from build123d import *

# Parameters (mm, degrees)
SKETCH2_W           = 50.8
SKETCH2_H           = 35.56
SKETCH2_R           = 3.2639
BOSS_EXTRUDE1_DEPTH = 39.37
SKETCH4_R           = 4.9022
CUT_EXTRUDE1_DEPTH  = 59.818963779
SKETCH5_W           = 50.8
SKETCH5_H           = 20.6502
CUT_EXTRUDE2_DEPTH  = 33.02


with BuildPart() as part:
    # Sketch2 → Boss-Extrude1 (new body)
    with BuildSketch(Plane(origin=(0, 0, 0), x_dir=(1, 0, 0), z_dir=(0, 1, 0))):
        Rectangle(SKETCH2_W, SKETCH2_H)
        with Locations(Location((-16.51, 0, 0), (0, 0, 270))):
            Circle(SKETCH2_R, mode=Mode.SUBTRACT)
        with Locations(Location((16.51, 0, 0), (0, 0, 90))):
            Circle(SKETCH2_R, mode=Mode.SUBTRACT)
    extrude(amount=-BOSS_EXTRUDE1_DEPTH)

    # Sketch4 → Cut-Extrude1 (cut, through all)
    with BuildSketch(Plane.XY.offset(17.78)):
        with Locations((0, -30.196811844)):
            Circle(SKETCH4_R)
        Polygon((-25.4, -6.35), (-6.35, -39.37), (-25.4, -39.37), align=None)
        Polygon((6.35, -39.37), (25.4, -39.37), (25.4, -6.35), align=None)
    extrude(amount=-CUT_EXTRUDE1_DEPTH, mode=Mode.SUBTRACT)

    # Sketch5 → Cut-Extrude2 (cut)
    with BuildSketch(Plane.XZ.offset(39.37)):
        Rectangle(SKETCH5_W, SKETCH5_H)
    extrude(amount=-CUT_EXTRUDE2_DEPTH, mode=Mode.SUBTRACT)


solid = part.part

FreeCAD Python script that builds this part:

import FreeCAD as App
import Part
import Sketcher

V = App.Vector
Q = App.Units.Quantity

doc = App.newDocument("Part")
params = doc.addObject("Spreadsheet::Sheet", "Params")
for row, (alias, value) in enumerate([
    ("sketch1_width", "2 in"),
    ("sketch1_diameter", "0.257 in"),
    ("sketch1_height", "1.4 in"),
    ("pad1_length", "1.55 in"),
    ("sketch2_diameter", "0.386 in"),
    ("sketch2_height", "1.3 in"),
    ("sketch2_width", "0.75 in"),
    ("sketch3_width", "2 in"),
    ("sketch3_height", "0.813 in"),
    ("pocket2_length", "1.3 in"),
], start=1):
    params.set(f"A{row}", alias)
    params.set(f"B{row}", "=" + value)
    params.setAlias(f"B{row}", alias)

body = doc.addObject("PartDesign::Body", "Body")

sketch1 = body.newObject("Sketcher::SketchObject", "Sketch")
sketch1.AttachmentSupport = (doc.getObject("XZ_Plane"), [""])
sketch1.MapMode = "FlatFace"
sketch1.addGeometry(Part.LineSegment(V(-25.4, -17.8, 0), V(-25.4, 17.8, 0)), False)
sketch1.addGeometry(Part.LineSegment(V(-25.4, 17.8, 0), V(25.4, 17.8, 0)), False)
sketch1.addGeometry(Part.LineSegment(V(25.4, 17.8, 0), V(25.4, -17.8, 0)), False)
sketch1.addGeometry(Part.LineSegment(V(25.4, -17.8, 0), V(-25.4, -17.8, 0)), False)
sketch1.addGeometry(Part.Circle(V(-16.5, 0, 0), V(0, 0, 1), 3.3), False)
sketch1.addGeometry(Part.Circle(V(16.5, 0, 0), V(0, 0, 1), 3.3), False)
sketch1.addConstraint(Sketcher.Constraint("Coincident", 0, 2, 1, 1))
sketch1.addConstraint(Sketcher.Constraint("Coincident", 1, 2, 2, 1))
sketch1.addConstraint(Sketcher.Constraint("Coincident", 2, 2, 3, 1))
sketch1.addConstraint(Sketcher.Constraint("Coincident", 3, 2, 0, 1))
sketch1.addConstraint(Sketcher.Constraint("Vertical", 0))
sketch1.addConstraint(Sketcher.Constraint("Horizontal", 1))
sketch1.addConstraint(Sketcher.Constraint("Vertical", 2))
sketch1.addConstraint(Sketcher.Constraint("Horizontal", 3))
sketch1.addConstraint(Sketcher.Constraint("Equal", 4, 5))
sketch1.addConstraint(Sketcher.Constraint("Symmetric", 4, 3, 5, 3, -1, 1))
sketch1.addConstraint(Sketcher.Constraint("Symmetric", 0, 2, 2, 2, -1, 1))
sketch1.addConstraint(Sketcher.Constraint("PointOnObject", 4, 3, -1))
sketch1.addConstraint(Sketcher.Constraint("DistanceX", 1, 1, 1, 2, Q("2 in")))
sketch1.addConstraint(Sketcher.Constraint("Diameter", 4, Q("0.257 in")))
sketch1.addConstraint(Sketcher.Constraint("DistanceY", 0, 1, 0, 2, Q("1.4 in")))
sketch1.addConstraint(Sketcher.Constraint("DistanceX", 4, 3, 5, 3, Q("1.3 in")))
sketch1.setExpression("Constraints[12]", "Params.sketch1_width")
sketch1.setExpression("Constraints[13]", "Params.sketch1_diameter")
sketch1.setExpression("Constraints[14]", "Params.sketch1_height")
pad1 = body.newObject("PartDesign::Pad", "Pad")
pad1.Profile = sketch1
pad1.setExpression("Length", "Params.pad1_length")

sketch2 = body.newObject("Sketcher::SketchObject", "Sketch001")
sketch2.AttachmentSupport = (doc.getObject("XY_Plane"), [""])
sketch2.MapMode = "FlatFace"
sketch2.AttachmentOffset = App.Placement(V(0, 0, 0.7 * 25.4), App.Rotation())
sketch2.addGeometry(Part.Circle(V(0, -30.2, 0), V(0, 0, 1), 4.9), False)
sketch2.addGeometry(Part.LineSegment(V(-6.3, -39.4, 0), V(-25.4, -6.3, 0)), False)
sketch2.addGeometry(Part.LineSegment(V(-25.4, -6.3, 0), V(-25.4, -39.4, 0)), False)
sketch2.addGeometry(Part.LineSegment(V(-25.4, -39.4, 0), V(-6.3, -39.4, 0)), False)
sketch2.addGeometry(Part.LineSegment(V(6.3, -39.4, 0), V(25.4, -39.4, 0)), False)
sketch2.addGeometry(Part.LineSegment(V(25.4, -39.4, 0), V(25.4, -6.3, 0)), False)
sketch2.addGeometry(Part.LineSegment(V(25.4, -6.3, 0), V(6.3, -39.4, 0)), False)
sketch2.addConstraint(Sketcher.Constraint("Coincident", 1, 2, 2, 1))
sketch2.addConstraint(Sketcher.Constraint("Coincident", 2, 2, 3, 1))
sketch2.addConstraint(Sketcher.Constraint("Coincident", 3, 2, 1, 1))
sketch2.addConstraint(Sketcher.Constraint("Coincident", 4, 2, 5, 1))
sketch2.addConstraint(Sketcher.Constraint("Coincident", 5, 2, 6, 1))
sketch2.addConstraint(Sketcher.Constraint("Coincident", 6, 2, 4, 1))
sketch2.addConstraint(Sketcher.Constraint("Vertical", 2))
sketch2.addConstraint(Sketcher.Constraint("Horizontal", 3))
sketch2.addConstraint(Sketcher.Constraint("Horizontal", 4))
sketch2.addConstraint(Sketcher.Constraint("Vertical", 5))
sketch2.addConstraint(Sketcher.Constraint("Symmetric", 2, 2, 4, 2, -2))
sketch2.addConstraint(Sketcher.Constraint("PointOnObject", 0, 3, -2))
sketch2.addConstraint(Sketcher.Constraint("Horizontal", 1, 2, 5, 2))
sketch2.addConstraint(Sketcher.Constraint("Equal", 3, 4))
sketch2.addConstraint(Sketcher.Constraint("Diameter", 0, Q("0.386 in")))
sketch2.addConstraint(Sketcher.Constraint("DistanceY", 2, 2, 2, 1, Q("1.3 in")))
sketch2.addConstraint(Sketcher.Constraint("DistanceX", 1, 2, -1, 1, Q("1 in")))
sketch2.addConstraint(Sketcher.Constraint("DistanceX", 3, 1, 3, 2, Q("0.75 in")))
sketch2.addConstraint(Sketcher.Constraint("DistanceY", 1, 2, -1, 1, Q("0.25 in")))
sketch2.addConstraint(Sketcher.Constraint("DistanceY", 0, 3, -1, 1, Q("30.196812 mm")))
sketch2.setExpression("Constraints[14]", "Params.sketch2_diameter")
sketch2.setExpression("Constraints[15]", "Params.sketch2_height")
sketch2.setExpression("Constraints[17]", "Params.sketch2_width")
pocket1 = body.newObject("PartDesign::Pocket", "Pocket")
pocket1.Profile = sketch2
pocket1.Type = "ThroughAll"

sketch3 = body.newObject("Sketcher::SketchObject", "Sketch002")
sketch3.AttachmentSupport = (doc.getObject("XZ_Plane"), [""])
sketch3.MapMode = "FlatFace"
sketch3.AttachmentOffset = App.Placement(V(0, 0, 1.55 * 25.4), App.Rotation())
sketch3.addGeometry(Part.LineSegment(V(-25, 10, 0), V(-25, -10, 0)), False)
sketch3.addGeometry(Part.LineSegment(V(-25, -10, 0), V(25, -10, 0)), False)
sketch3.addGeometry(Part.LineSegment(V(25, -10, 0), V(25, 10, 0)), False)
sketch3.addGeometry(Part.LineSegment(V(25, 10, 0), V(-25, 10, 0)), False)
sketch3.addConstraint(Sketcher.Constraint("Coincident", 0, 2, 1, 1))
sketch3.addConstraint(Sketcher.Constraint("Coincident", 1, 2, 2, 1))
sketch3.addConstraint(Sketcher.Constraint("Coincident", 2, 2, 3, 1))
sketch3.addConstraint(Sketcher.Constraint("Coincident", 3, 2, 0, 1))
sketch3.addConstraint(Sketcher.Constraint("Vertical", 0))
sketch3.addConstraint(Sketcher.Constraint("Horizontal", 1))
sketch3.addConstraint(Sketcher.Constraint("Vertical", 2))
sketch3.addConstraint(Sketcher.Constraint("Horizontal", 3))
sketch3.addConstraint(Sketcher.Constraint("Symmetric", 0, 2, 2, 2, -1, 1))
sketch3.addConstraint(Sketcher.Constraint("DistanceX", 1, 1, 1, 2, Q("2 in")))
sketch3.addConstraint(Sketcher.Constraint("DistanceY", 0, 2, 0, 1, Q("0.813 in")))
sketch3.setExpression("Constraints[9]", "Params.sketch3_width")
sketch3.setExpression("Constraints[10]", "Params.sketch3_height")
pocket2 = body.newObject("PartDesign::Pocket", "Pocket001")
pocket2.Profile = sketch3
pocket2.setExpression("Length", "Params.pocket2_length")

doc.recompute()
